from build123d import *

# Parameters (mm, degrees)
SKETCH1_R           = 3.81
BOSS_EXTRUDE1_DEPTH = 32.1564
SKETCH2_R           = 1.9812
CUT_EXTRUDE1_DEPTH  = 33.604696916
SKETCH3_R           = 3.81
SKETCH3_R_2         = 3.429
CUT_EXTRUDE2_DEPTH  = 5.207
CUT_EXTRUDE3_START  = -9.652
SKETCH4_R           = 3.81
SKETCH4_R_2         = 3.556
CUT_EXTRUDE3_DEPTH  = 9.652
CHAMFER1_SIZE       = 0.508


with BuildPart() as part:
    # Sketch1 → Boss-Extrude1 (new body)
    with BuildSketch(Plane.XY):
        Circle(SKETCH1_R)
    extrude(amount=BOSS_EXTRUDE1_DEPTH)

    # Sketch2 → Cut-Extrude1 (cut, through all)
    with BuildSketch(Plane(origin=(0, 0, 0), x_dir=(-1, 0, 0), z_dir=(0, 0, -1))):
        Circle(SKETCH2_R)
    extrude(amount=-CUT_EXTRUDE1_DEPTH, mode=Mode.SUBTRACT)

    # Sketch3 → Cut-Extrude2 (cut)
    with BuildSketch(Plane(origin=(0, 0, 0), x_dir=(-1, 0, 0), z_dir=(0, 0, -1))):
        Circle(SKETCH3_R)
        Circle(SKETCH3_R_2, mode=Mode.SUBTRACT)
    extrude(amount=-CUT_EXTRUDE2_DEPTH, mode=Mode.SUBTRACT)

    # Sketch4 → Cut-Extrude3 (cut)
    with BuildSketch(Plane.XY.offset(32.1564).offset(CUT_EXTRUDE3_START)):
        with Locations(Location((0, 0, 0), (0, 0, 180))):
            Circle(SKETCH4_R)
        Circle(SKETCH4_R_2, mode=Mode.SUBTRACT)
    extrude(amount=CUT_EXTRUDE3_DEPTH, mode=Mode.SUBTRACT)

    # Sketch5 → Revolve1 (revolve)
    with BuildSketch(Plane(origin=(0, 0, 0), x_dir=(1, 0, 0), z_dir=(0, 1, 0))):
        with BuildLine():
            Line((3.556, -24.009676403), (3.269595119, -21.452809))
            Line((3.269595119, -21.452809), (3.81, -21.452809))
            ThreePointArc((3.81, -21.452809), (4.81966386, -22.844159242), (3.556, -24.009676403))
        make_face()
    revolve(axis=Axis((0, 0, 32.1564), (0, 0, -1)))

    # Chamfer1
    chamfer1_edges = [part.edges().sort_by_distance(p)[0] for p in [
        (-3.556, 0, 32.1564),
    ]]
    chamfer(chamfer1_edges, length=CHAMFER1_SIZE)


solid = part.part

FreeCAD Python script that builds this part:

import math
import FreeCAD as App
import Part
import Sketcher

V = App.Vector
Q = App.Units.Quantity


def edges_at(feature, points):
    """Names of the edges that pass closest to the given points."""
    edges = feature.Shape.Edges
    near = lambda p: min(range(len(edges)), key=lambda i: edges[i].distToShape(Part.Vertex(*p))[0])
    return sorted({f"Edge{near(p) + 1}" for p in points})

doc = App.newDocument("Part")
body = doc.addObject("PartDesign::Body", "Body")

# Sketch on XY plane
sketch1 = body.newObject("Sketcher::SketchObject", "Sketch")
sketch1.AttachmentSupport = (doc.getObject("XY_Plane"), [""])
sketch1.MapMode = "FlatFace"
sketch1.addGeometry(Part.Circle(V(0, 0, 0), V(0, 0, 1), 3.8), False)
sketch1.addConstraint([
    Sketcher.Constraint("Coincident", 0, 3, -1, 1),
    Sketcher.Constraint("Diameter", 0, Q("0.3 in")),
])
pad1 = body.newObject("PartDesign::Pad", "Pad")
pad1.Profile = sketch1
pad1.Length = Q("1.266 in")

# Sketch on XY plane
sketch2 = body.newObject("Sketcher::SketchObject", "Sketch001")
sketch2.AttachmentSupport = (doc.getObject("XY_Plane"), [""])
sketch2.MapMode = "FlatFace"
sketch2.addGeometry(Part.Circle(V(0, 0, 0), V(0, 0, 1), 2), False)
sketch2.addConstraint([
    Sketcher.Constraint("Coincident", 0, 3, -1, 1),
    Sketcher.Constraint("Diameter", 0, Q("0.156 in")),
])
pocket1 = body.newObject("PartDesign::Pocket", "Pocket")
pocket1.Profile = sketch2
pocket1.Type = "ThroughAll"
pocket1.Reversed = True

# Sketch on XY plane
sketch3 = body.newObject("Sketcher::SketchObject", "Sketch002")
sketch3.AttachmentSupport = (doc.getObject("XY_Plane"), [""])
sketch3.MapMode = "FlatFace"
sketch3.addGeometry([
    Part.Circle(V(0, 0, 0), V(0, 0, 1), 3.8),
    Part.Circle(V(0, 0, 0), V(0, 0, 1), 3.4),
], False)
sketch3.addConstraint([
    Sketcher.Constraint("Coincident", 0, 3, -1, 1),
    Sketcher.Constraint("Coincident", 1, 3, -1, 1),
    Sketcher.Constraint("Diameter", 0, Q("0.3 in")),
    Sketcher.Constraint("Diameter", 1, Q("0.27 in")),
])
pocket2 = body.newObject("PartDesign::Pocket", "Pocket001")
pocket2.Profile = sketch3
pocket2.Length = Q("0.205 in")
pocket2.Reversed = True

# Sketch on XY plane
sketch4 = body.newObject("Sketcher::SketchObject", "Sketch003")
sketch4.AttachmentSupport = (doc.getObject("XY_Plane"), [""])
sketch4.MapMode = "FlatFace"
sketch4.AttachmentOffset = App.Placement(V(0, 0, 0.886 * 25.4), App.Rotation())
sketch4.addGeometry([
    Part.Circle(V(0, 0, 0), V(0, 0, 1), 3.8),
    Part.Circle(V(0, 0, 0), V(0, 0, 1), 3.6),
], False)
sketch4.addConstraint([
    Sketcher.Constraint("Coincident", 0, 3, -1, 1),
    Sketcher.Constraint("Coincident", 1, 3, -1, 1),
    Sketcher.Constraint("Diameter", 0, Q("0.3 in")),
    Sketcher.Constraint("Diameter", 1, Q("0.28 in")),
])
pocket3 = body.newObject("PartDesign::Pocket", "Pocket002")
pocket3.Profile = sketch4
pocket3.Length = Q("0.38 in")
pocket3.Reversed = True

# Sketch on XZ plane
sketch5 = body.newObject("Sketcher::SketchObject", "Sketch004")
sketch5.AttachmentSupport = (doc.getObject("XZ_Plane"), [""])
sketch5.MapMode = "FlatFace"
sketch5.addGeometry([
    Part.LineSegment(V(3.3, 21.5, 0), V(3.6, 24, 0)),
    Part.ArcOfCircle(Part.Circle(V(3.5, 22.7, 0), V(0, 0, 1), 1.3), math.radians(-78), math.radians(89)),
    Part.LineSegment(V(3.8, 21.5, 0), V(3.3, 21.5, 0)),
], False)
sketch5.addConstraint([
    Sketcher.Constraint("Coincident", 0, 2, 1, 2),
    Sketcher.Constraint("Coincident", 1, 1, 2, 1),
    Sketcher.Constraint("Coincident", 2, 2, 0, 1),
    Sketcher.Constraint("Horizontal", 2),
    Sketcher.Constraint("DistanceX", -1, 1, 0, 2, Q("0.14 in")),
    Sketcher.Constraint("DistanceX", -1, 1, 1, 1, Q("0.15 in")),
    Sketcher.Constraint("Radius", 1, 1.293611),
    Sketcher.Constraint("Distance", 0, 2.572858),
    Sketcher.Constraint("DistanceX", 2, 2, 2, 1, 0.540405),
    Sketcher.Constraint("DistanceY", -1, 1, 1, 3, 22.716281),
])
revolution = body.newObject("PartDesign::Revolution", "Revolution")
revolution.Profile = sketch5
revolution.ReferenceAxis = (sketch5, ["V_Axis"])
revolution.Angle = 360
doc.recompute()

chamfer = body.newObject("PartDesign::Chamfer", "Chamfer")
chamfer.Base = (revolution, edges_at(revolution, [(-3.556, 0, 32.156)]))
chamfer.Size = Q("0.02 in")

doc.recompute()
